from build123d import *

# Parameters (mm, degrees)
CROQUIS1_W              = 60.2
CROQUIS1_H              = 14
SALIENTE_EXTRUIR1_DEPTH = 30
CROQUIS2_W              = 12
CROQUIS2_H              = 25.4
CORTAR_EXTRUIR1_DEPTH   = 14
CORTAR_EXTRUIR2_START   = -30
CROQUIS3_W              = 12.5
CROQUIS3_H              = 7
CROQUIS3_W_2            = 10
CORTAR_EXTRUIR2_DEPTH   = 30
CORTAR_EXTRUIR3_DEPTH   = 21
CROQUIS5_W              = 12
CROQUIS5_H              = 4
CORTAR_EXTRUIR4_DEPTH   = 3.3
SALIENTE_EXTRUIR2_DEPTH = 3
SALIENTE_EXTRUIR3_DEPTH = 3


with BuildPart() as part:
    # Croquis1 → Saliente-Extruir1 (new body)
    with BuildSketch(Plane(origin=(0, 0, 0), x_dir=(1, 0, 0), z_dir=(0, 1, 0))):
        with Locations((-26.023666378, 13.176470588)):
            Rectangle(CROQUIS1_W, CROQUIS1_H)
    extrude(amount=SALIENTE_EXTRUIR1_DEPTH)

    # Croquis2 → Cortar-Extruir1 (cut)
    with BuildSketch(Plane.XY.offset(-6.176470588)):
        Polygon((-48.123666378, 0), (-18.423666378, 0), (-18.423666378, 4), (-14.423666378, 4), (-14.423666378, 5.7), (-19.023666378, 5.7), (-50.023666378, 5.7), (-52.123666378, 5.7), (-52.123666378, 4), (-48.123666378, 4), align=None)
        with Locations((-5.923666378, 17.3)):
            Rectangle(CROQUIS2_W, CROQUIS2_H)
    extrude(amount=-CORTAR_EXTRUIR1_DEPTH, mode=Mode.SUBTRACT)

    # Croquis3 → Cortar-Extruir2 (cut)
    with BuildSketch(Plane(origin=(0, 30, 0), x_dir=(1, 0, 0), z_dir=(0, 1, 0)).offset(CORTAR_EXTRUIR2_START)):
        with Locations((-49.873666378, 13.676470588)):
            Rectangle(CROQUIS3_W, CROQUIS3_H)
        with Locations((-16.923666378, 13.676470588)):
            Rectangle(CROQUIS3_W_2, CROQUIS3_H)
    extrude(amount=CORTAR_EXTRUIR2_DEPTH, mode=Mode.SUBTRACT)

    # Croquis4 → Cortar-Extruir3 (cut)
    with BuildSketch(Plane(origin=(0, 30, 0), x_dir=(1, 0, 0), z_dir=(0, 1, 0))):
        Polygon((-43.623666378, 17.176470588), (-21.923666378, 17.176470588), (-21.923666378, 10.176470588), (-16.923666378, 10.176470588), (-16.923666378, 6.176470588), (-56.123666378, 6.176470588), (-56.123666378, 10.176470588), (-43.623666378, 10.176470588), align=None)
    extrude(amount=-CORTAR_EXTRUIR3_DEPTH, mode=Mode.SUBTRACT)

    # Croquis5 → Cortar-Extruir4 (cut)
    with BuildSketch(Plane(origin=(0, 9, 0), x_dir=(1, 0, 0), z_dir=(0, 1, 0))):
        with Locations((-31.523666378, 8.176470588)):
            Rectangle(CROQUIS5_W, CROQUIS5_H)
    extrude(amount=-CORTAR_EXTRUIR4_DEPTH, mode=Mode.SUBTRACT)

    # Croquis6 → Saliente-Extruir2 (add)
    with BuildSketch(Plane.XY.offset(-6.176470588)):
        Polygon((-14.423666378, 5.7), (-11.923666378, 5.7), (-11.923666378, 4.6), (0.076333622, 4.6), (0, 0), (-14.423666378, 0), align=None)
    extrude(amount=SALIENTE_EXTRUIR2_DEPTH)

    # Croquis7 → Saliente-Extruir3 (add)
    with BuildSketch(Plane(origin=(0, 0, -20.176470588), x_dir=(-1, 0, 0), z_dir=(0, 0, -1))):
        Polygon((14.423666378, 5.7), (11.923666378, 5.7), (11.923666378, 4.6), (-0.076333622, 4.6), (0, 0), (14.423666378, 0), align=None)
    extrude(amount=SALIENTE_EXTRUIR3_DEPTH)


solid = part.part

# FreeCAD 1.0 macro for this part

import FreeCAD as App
import Part
import Sketcher

V = App.Vector
Q = App.Units.Quantity


def add_polygon(sketch, points):
    """Adds a closed chain of lines whose ends are joined by coincident constraints."""
    first, n = sketch.GeometryCount, len(points)
    for a, b in zip(points, points[1:] + points[:1]):
        sketch.addGeometry(Part.LineSegment(App.Vector(*a, 0), App.Vector(*b, 0)), False)
    for i in range(n):
        sketch.addConstraint(Sketcher.Constraint("Coincident", first + i, 2, first + (i + 1) % n, 1))

doc = App.newDocument("Part")
body = doc.addObject("PartDesign::Body", "Body")

# Sketch on XZ plane
sketch1 = body.newObject("Sketcher::SketchObject", "Sketch")
sketch1.AttachmentSupport = (doc.getObject("XZ_Plane"), [""])
sketch1.MapMode = "FlatFace"
add_polygon(sketch1, [(-56, -20), (-56, -6), (4, -6), (4, -20)])  # lines 0-3
sketch1.addConstraint([
    Sketcher.Constraint("Vertical", 0),
    Sketcher.Constraint("Horizontal", 1),
    Sketcher.Constraint("Vertical", 2),
    Sketcher.Constraint("Horizontal", 3),
    Sketcher.Constraint("DistanceY", 0, 1, 0, 2, Q("14 mm")),
    Sketcher.Constraint("DistanceX", 1, 1, 1, 2, Q("60.2 mm")),
    Sketcher.Constraint("DistanceY", 0, 2, -1, 1, Q("6.176471 mm")),
    Sketcher.Constraint("DistanceX", 0, 2, -1, 1, Q("56.123666 mm")),
])
pad1 = body.newObject("PartDesign::Pad", "Pad")
pad1.Profile = sketch1
pad1.Length = 30
pad1.Reversed = True

# Sketch on XY plane
sketch2 = body.newObject("Sketcher::SketchObject", "Sketch001")
sketch2.AttachmentSupport = (doc.getObject("XY_Plane"), [""])
sketch2.MapMode = "FlatFace"
sketch2.AttachmentOffset = App.Placement(V(0, 0, -6.176471), App.Rotation())
add_polygon(sketch2, [(-48.1, 0), (-18.4, 0), (-18.4, 4), (-14.4, 4), (-14.4, 5.7), (-52.1, 5.7), (-52.1, 4), (-48.1, 4)])  # lines 0-7
add_polygon(sketch2, [(-11.9, 30), (-11.9, 4.6), (0.1, 4.6), (0.1, 30)])  # lines 8-11
sketch2.addConstraint([
    Sketcher.Constraint("Horizontal", 0),
    Sketcher.Constraint("Vertical", 1),
    Sketcher.Constraint("Horizontal", 2),
    Sketcher.Constraint("Vertical", 3),
    Sketcher.Constraint("Horizontal", 4),
    Sketcher.Constraint("Vertical", 5),
    Sketcher.Constraint("Horizontal", 6),
    Sketcher.Constraint("Vertical", 7),
    Sketcher.Constraint("Vertical", 8),
    Sketcher.Constraint("Horizontal", 9),
    Sketcher.Constraint("Vertical", 10),
    Sketcher.Constraint("Horizontal", 11),
    Sketcher.Constraint("PointOnObject", 0, 2, -1),
    Sketcher.Constraint("Horizontal", 2, 2, 5, 2),
    Sketcher.Constraint("Equal", 2, 6),
    Sketcher.Constraint("Equal", 6, 1),
    Sketcher.Constraint("DistanceX", 2, 1, 2, 2, Q("4 mm")),
    Sketcher.Constraint("DistanceX", 9, 1, 9, 2, Q("12 mm")),
    Sketcher.Constraint("DistanceX", 0, 1, 0, 2, Q("29.7 mm")),
    Sketcher.Constraint("DistanceY", 3, 1, 3, 2, Q("1.7 mm")),
    Sketcher.Constraint("DistanceY", 8, 2, 8, 1, Q("25.4 mm")),
    Sketcher.Constraint("DistanceY", -1, 1, 10, 2, Q("30 mm")),
    Sketcher.Constraint("DistanceX", 2, 2, 8, 2, Q("2.5 mm")),
    Sketcher.Constraint("DistanceX", 0, 2, -1, 1, Q("18.423666 mm")),
])
pocket1 = body.newObject("PartDesign::Pocket", "Pocket")
pocket1.Profile = sketch2
pocket1.Length = 14

# Sketch on XZ plane
sketch3 = body.newObject("Sketcher::SketchObject", "Sketch002")
sketch3.AttachmentSupport = (doc.getObject("XZ_Plane"), [""])
sketch3.MapMode = "FlatFace"
add_polygon(sketch3, [(-56, -17), (-56, -10), (-44, -10), (-44, -17)])  # lines 0-3
add_polygon(sketch3, [(-22, -17), (-22, -10), (-12, -10), (-12, -17)])  # lines 4-7
sketch3.addConstraint([
    Sketcher.Constraint("Vertical", 0),
    Sketcher.Constraint("Horizontal", 1),
    Sketcher.Constraint("Vertical", 2),
    Sketcher.Constraint("Horizontal", 3),
    Sketcher.Constraint("Vertical", 4),
    Sketcher.Constraint("Horizontal", 5),
    Sketcher.Constraint("Vertical", 6),
    Sketcher.Constraint("Horizontal", 7),
    Sketcher.Constraint("Horizontal", 1, 2, 4, 2),
    Sketcher.Constraint("Horizontal", 3, 2, 6, 2),
    Sketcher.Constraint("DistanceX", 5, 1, 5, 2, Q("10 mm")),
    Sketcher.Constraint("DistanceY", 0, 1, 0, 2, Q("7 mm")),
    Sketcher.Constraint("DistanceX", 1, 1, 1, 2, Q("12.5 mm")),
    Sketcher.Constraint("DistanceX", 1, 2, 4, 2, Q("21.7 mm")),
    Sketcher.Constraint("DistanceY", 0, 2, -1, 1, Q("10.176471 mm")),
    Sketcher.Constraint("DistanceX", 0, 2, -1, 1, Q("56.123666 mm")),
])
pocket2 = body.newObject("PartDesign::Pocket", "Pocket001")
pocket2.Profile = sketch3
pocket2.Length = 30

# Sketch on XZ plane
sketch4 = body.newObject("Sketcher::SketchObject", "Sketch003")
sketch4.AttachmentSupport = (doc.getObject("XZ_Plane"), [""])
sketch4.MapMode = "FlatFace"
sketch4.AttachmentOffset = App.Placement(V(0, 0, -30), App.Rotation())
add_polygon(sketch4, [(-21.9, -17.2), (-43.6, -17.2), (-43.6, -10.2), (-56.1, -10.2), (-56.1, -6.2), (-16.9, -6.2), (-16.9, -10.2), (-21.9, -10.2)])  # lines 0-7
sketch4.addConstraint([
    Sketcher.Constraint("Horizontal", 0),
    Sketcher.Constraint("Vertical", 1),
    Sketcher.Constraint("Horizontal", 2),
    Sketcher.Constraint("Vertical", 3),
    Sketcher.Constraint("Horizontal", 4),
    Sketcher.Constraint("Vertical", 5),
    Sketcher.Constraint("Horizontal", 6),
    Sketcher.Constraint("Vertical", 7),
    Sketcher.Constraint("Horizontal", 2, 2, 5, 2),
    Sketcher.Constraint("DistanceX", 6, 2, 6, 1, Q("5 mm")),
    Sketcher.Constraint("DistanceY", 1, 1, 1, 2, Q("7 mm")),
    Sketcher.Constraint("DistanceY", 3, 1, 3, 2, Q("4 mm")),
    Sketcher.Constraint("DistanceX", 0, 2, 0, 1, Q("21.7 mm")),
    Sketcher.Constraint("DistanceX", 2, 2, 2, 1, Q("12.5 mm")),
    Sketcher.Constraint("DistanceY", 0, 2, -1, 1, Q("17.176471 mm")),
    Sketcher.Constraint("DistanceX", 0, 2, -1, 1, Q("43.623666 mm")),
])
pocket3 = body.newObject("PartDesign::Pocket", "Pocket002")
pocket3.Profile = sketch4
pocket3.Length = 21
pocket3.Reversed = True

# Sketch on XZ plane
sketch5 = body.newObject("Sketcher::SketchObject", "Sketch004")
sketch5.AttachmentSupport = (doc.getObject("XZ_Plane"), [""])
sketch5.MapMode = "FlatFace"
sketch5.AttachmentOffset = App.Placement(V(0, 0, -9), App.Rotation())
add_polygon(sketch5, [(-37.5, -10.2), (-37.5, -6.2), (-25.5, -6.2), (-25.5, -10.2)])  # lines 0-3
sketch5.addConstraint([
    Sketcher.Constraint("Vertical", 0),
    Sketcher.Constraint("Horizontal", 1),
    Sketcher.Constraint("Vertical", 2),
    Sketcher.Constraint("Horizontal", 3),
    Sketcher.Constraint("DistanceX", 1, 1, 1, 2, Q("12 mm")),
    Sketcher.Constraint("DistanceY", 0, 1, 0, 2, Q("4 mm")),
    Sketcher.Constraint("DistanceY", 0, 2, -1, 1, Q("6.176471 mm")),
    Sketcher.Constraint("DistanceX", 0, 2, -1, 1, Q("37.523666 mm")),
])
pocket4 = body.newObject("PartDesign::Pocket", "Pocket003")
pocket4.Profile = sketch5
pocket4.Length = 3.3
pocket4.Reversed = True

# Sketch on XY plane
sketch6 = body.newObject("Sketcher::SketchObject", "Sketch005")
sketch6.AttachmentSupport = (doc.getObject("XY_Plane"), [""])
sketch6.MapMode = "FlatFace"
sketch6.AttachmentOffset = App.Placement(V(0, 0, -6.176471), App.Rotation())
add_polygon(sketch6, [(-11.9, 5.7), (-14.4, 5.7), (-14.4, 0), (0, 0), (0.1, 4.6), (-11.9, 4.6)])  # lines 0-5
sketch6.addConstraint([
    Sketcher.Constraint("Horizontal", 0),
    Sketcher.Constraint("Vertical", 1),
    Sketcher.Constraint("Horizontal", 2),
    Sketcher.Constraint("Horizontal", 4),
    Sketcher.Constraint("Vertical", 5),
    Sketcher.Constraint("Coincident", 2, 2, -1, 1),
    Sketcher.Constraint("DistanceX", 4, 2, 4, 1, Q("12 mm")),
    Sketcher.Constraint("DistanceX", 0, 2, 0, 1, Q("2.5 mm")),
    Sketcher.Constraint("DistanceY", 1, 2, 1, 1, Q("5.7 mm")),
    Sketcher.Constraint("DistanceY", 5, 1, 5, 2, Q("1.1 mm")),
    Sketcher.Constraint("DistanceX", 2, 1, 2, 2, Q("14.423666 mm")),
])
pad2 = body.newObject("PartDesign::Pad", "Pad001")
pad2.Profile = sketch6
pad2.Length = 3

# Sketch on XY plane
sketch7 = body.newObject("Sketcher::SketchObject", "Sketch006")
sketch7.AttachmentSupport = (doc.getObject("XY_Plane"), [""])
sketch7.MapMode = "FlatFace"
sketch7.AttachmentOffset = App.Placement(V(0, 0, -20.176471), App.Rotation())
add_polygon(sketch7, [(-14.4, 5.7), (-11.9, 5.7), (-11.9, 4.6), (0.1, 4.6), (0, 0), (-14.4, 0)])  # lines 0-5
sketch7.addConstraint([
    Sketcher.Constraint("Horizontal", 0),
    Sketcher.Constraint("Vertical", 1),
    Sketcher.Constraint("Horizontal", 2),
    Sketcher.Constraint("Horizontal", 4),
    Sketcher.Constraint("Vertical", 5),
    Sketcher.Constraint("Coincident", 3, 2, -1, 1),
    Sketcher.Constraint("DistanceX", 2, 1, 2, 2, Q("12 mm")),
    Sketcher.Constraint("DistanceX", 0, 1, 0, 2, Q("2.5 mm")),
    Sketcher.Constraint("DistanceY", 1, 2, 1, 1, Q("1.1 mm")),
    Sketcher.Constraint("DistanceY", 5, 1, 5, 2, Q("5.7 mm")),
    Sketcher.Constraint("DistanceX", 4, 2, 4, 1, Q("14.423666 mm")),
])
pad3 = body.newObject("PartDesign::Pad", "Pad002")
pad3.Profile = sketch7
pad3.Length = 3
pad3.Reversed = True

doc.recompute()
